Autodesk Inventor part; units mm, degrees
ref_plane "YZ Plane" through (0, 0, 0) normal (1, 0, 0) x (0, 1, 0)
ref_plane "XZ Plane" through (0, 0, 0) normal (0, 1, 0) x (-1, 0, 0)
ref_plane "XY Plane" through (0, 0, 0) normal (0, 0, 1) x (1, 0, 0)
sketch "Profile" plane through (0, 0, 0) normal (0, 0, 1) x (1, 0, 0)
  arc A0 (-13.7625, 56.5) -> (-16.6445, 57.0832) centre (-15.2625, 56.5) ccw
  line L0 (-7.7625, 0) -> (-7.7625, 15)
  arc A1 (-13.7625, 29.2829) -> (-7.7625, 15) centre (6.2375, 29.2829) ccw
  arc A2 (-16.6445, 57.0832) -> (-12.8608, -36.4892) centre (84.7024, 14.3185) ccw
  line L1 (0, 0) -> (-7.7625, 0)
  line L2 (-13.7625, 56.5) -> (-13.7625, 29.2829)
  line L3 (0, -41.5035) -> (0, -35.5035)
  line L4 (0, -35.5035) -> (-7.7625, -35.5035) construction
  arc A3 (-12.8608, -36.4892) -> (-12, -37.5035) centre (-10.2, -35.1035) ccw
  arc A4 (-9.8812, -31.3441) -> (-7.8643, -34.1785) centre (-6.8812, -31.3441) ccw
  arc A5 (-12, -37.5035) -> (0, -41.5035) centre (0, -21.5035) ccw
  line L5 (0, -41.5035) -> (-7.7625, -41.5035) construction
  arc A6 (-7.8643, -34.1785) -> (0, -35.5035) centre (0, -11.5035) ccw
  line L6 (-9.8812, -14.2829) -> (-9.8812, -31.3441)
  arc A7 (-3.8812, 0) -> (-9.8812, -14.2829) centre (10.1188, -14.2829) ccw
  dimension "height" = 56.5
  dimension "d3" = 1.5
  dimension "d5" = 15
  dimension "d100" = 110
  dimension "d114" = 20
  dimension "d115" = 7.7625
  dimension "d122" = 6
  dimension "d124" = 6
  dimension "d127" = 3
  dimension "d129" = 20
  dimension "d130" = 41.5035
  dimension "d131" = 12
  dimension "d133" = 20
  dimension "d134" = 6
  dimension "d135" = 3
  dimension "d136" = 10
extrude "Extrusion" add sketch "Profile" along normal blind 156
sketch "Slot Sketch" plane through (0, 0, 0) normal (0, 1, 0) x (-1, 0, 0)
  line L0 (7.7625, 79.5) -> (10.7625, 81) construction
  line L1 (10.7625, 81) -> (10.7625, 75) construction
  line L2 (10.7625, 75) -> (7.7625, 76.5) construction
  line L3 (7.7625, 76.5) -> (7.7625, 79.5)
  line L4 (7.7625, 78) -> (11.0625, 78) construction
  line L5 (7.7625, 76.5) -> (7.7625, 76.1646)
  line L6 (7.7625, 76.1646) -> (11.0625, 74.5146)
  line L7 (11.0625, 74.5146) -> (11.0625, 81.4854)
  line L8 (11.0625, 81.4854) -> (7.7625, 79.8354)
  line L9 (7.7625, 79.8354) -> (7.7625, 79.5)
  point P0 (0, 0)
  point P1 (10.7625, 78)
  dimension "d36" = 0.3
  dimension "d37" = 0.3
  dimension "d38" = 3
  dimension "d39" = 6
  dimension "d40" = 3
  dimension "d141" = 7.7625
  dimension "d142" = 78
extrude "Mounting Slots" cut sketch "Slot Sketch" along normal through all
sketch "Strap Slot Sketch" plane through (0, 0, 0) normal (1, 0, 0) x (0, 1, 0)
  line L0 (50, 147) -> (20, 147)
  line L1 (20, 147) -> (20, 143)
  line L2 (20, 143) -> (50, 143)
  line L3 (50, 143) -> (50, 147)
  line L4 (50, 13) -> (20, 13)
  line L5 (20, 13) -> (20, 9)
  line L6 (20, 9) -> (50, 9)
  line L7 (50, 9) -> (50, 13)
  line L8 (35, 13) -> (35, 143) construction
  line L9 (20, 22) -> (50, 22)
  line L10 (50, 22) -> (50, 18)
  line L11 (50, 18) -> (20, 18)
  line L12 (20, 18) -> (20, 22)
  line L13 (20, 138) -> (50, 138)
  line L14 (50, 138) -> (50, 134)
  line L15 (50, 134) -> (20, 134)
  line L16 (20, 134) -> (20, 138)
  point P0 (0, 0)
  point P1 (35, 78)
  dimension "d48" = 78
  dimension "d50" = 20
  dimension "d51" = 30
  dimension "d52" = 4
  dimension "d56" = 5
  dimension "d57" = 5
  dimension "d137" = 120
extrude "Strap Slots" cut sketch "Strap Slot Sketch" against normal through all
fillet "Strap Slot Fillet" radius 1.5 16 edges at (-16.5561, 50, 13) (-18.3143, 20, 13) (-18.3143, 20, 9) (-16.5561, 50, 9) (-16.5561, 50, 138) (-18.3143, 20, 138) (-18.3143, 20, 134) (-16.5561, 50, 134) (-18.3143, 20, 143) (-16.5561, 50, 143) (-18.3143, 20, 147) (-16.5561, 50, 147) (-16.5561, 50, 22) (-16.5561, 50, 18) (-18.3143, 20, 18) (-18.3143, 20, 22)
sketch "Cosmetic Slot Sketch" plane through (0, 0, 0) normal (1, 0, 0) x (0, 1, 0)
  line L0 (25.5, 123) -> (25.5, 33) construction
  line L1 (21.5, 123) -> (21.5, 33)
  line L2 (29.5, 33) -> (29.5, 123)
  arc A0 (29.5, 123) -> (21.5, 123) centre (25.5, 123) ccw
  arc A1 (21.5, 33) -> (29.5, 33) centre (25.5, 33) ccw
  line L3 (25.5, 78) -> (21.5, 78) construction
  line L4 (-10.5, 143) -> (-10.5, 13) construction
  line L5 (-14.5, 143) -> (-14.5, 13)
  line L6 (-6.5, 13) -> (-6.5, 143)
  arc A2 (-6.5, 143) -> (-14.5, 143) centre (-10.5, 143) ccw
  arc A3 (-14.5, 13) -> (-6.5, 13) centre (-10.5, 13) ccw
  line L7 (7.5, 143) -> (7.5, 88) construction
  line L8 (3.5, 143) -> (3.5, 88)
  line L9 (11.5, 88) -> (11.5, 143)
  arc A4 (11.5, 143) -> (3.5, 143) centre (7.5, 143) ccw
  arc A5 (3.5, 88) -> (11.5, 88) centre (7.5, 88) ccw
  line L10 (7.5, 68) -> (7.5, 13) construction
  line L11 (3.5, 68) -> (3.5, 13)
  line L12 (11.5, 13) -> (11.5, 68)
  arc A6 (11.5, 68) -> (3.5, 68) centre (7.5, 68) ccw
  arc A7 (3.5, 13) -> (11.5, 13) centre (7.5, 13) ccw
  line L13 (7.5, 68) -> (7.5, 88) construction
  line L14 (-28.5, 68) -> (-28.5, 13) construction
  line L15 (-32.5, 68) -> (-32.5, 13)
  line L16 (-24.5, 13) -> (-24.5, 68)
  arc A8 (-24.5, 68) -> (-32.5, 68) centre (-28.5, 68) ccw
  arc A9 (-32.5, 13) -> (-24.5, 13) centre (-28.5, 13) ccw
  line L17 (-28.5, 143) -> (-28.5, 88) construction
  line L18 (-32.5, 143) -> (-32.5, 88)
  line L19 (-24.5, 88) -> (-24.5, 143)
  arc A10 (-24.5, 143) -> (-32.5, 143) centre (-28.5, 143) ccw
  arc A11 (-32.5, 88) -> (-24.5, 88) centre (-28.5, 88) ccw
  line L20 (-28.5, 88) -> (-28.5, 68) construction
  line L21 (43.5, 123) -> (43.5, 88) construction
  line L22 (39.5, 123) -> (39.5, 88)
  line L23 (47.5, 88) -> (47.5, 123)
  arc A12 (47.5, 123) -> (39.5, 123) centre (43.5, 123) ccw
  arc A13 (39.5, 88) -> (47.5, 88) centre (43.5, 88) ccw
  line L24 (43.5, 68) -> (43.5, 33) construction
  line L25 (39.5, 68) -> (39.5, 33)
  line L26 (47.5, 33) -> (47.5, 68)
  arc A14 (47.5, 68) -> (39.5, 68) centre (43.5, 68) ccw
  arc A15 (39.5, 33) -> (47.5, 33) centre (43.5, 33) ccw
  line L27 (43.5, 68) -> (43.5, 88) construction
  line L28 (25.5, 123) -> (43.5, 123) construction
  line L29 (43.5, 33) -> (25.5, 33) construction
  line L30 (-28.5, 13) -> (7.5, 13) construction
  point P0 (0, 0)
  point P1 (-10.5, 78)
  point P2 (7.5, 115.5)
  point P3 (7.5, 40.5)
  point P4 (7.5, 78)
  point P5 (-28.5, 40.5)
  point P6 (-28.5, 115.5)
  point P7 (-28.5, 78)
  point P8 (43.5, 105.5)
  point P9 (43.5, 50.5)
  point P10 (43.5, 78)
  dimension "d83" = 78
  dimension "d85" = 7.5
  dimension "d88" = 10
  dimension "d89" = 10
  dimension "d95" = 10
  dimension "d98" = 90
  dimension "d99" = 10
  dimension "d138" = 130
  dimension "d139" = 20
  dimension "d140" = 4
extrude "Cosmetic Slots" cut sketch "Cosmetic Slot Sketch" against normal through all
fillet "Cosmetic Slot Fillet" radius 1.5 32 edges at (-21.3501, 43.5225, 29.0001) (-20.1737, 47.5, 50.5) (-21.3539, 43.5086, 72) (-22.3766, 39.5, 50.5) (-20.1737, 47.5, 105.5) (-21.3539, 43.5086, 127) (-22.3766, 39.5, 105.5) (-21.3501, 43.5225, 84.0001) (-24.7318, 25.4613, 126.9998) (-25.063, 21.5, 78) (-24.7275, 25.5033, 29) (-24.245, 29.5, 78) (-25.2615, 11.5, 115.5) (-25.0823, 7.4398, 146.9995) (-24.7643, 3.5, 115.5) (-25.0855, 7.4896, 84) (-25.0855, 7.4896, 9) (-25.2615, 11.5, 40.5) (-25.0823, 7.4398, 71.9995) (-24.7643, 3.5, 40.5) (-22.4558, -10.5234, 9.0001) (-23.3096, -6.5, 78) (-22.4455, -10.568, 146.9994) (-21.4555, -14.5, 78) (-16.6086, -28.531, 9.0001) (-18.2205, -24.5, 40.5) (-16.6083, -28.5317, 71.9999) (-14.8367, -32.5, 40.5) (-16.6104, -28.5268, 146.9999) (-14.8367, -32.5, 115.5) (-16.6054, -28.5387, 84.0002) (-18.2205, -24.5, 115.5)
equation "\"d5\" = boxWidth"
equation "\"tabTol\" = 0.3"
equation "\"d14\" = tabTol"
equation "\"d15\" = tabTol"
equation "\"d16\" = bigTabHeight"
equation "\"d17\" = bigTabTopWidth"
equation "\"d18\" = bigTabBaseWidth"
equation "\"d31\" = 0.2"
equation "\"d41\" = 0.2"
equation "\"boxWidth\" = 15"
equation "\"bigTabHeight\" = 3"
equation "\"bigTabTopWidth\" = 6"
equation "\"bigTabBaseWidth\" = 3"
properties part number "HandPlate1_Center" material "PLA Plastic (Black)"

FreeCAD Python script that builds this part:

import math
import FreeCAD as App
import Part
import Sketcher
Q = App.Units.Quantity


def edges_at(feature, points):
    """Names of the edges that pass closest to the given points."""
    edges = feature.Shape.Edges
    near = lambda p: min(range(len(edges)), key=lambda i: edges[i].distToShape(Part.Vertex(*p))[0])
    return sorted({f"Edge{near(p) + 1}" for p in points})

doc = App.newDocument("Part")
params = doc.addObject("Spreadsheet::Sheet", "Params")
for row, (alias, value) in enumerate([
    ("sketch1_radius", "110 mm"),
    ("sketch1_radius2", "3 mm"),
    ("sketch1_radius3", "20 mm"),
    ("sketch1_radius4", "1.5 mm"),
    ("sketch1_height", "6 mm"),
    ("pad1_length", "156 mm"),
    ("sketch3_width", "30 mm"),
    ("sketch3_height", "4 mm"),
    ("fillet_radius", "1.5 mm"),
    ("sketch4_radius", "4 mm"),
    ("sketch4_height", "90 mm"),
    ("sketch4_height2", "130 mm"),
    ("fillet2_radius", "1.5 mm"),
], start=1):
    params.set(f"A{row}", alias)
    params.set(f"B{row}", "=" + value)
    params.setAlias(f"B{row}", alias)

body = doc.addObject("PartDesign::Body", "Body")

sketch1 = doc.addObject("Sketcher::SketchObject", "Sketch")
body.addObject(sketch1)
sketch1.AttachmentSupport = (doc.XY_Plane, [""])
sketch1.MapMode = "FlatFace"
sketch1.addGeometry(Part.LineSegment(App.Vector(-13.7625, 29.2829, 0), App.Vector(-13.7625, 56.5, 0)), False)
sketch1.addGeometry(Part.ArcOfCircle(Part.Circle(App.Vector(-15.2625, 56.5, 0), App.Vector(0, 0, 1), 1.5), math.radians(0), math.radians(157.120396)), False)
sketch1.addGeometry(Part.ArcOfCircle(Part.Circle(App.Vector(84.7024, 14.3185, 0), App.Vector(0, 0, 1), 110.000062), math.radians(157.122027), math.radians(207.509015)), False)
sketch1.addGeometry(Part.ArcOfCircle(Part.Circle(App.Vector(-10.2, -35.1035, 0), App.Vector(0, 0, 1), 3.000004), math.radians(-152.490256), math.radians(-126.869898)), False)
sketch1.addGeometry(Part.ArcOfCircle(Part.Circle(App.Vector(0, -21.5035, 0), App.Vector(0, 0, 1), 20), math.radians(-126.869898), math.radians(-90)), False)
sketch1.addGeometry(Part.LineSegment(App.Vector(0, -41.5035, 0), App.Vector(0, -35.5035, 0)), False)
sketch1.addGeometry(Part.ArcOfCircle(Part.Circle(App.Vector(-0.000529, -11.505569, 0), App.Vector(0, 0, 1), 23.997931), math.radians(-109.128347), math.radians(-89.998737)), False)
sketch1.addGeometry(Part.ArcOfCircle(Part.Circle(App.Vector(-6.8812, -31.3441, 0), App.Vector(0, 0, 1), 3), math.radians(180), math.radians(250.871107)), False)
sketch1.addGeometry(Part.LineSegment(App.Vector(-9.8812, -31.3441, 0), App.Vector(-9.8812, -14.2829, 0)), False)
sketch1.addGeometry(Part.ArcOfCircle(Part.Circle(App.Vector(10.1188, -14.2829, 0), App.Vector(0, 0, 1), 20.000031), math.radians(134.426917), math.radians(180)), False)
sketch1.addGeometry(Part.LineSegment(App.Vector(-3.8812, 0, 0), App.Vector(-7.7625, 0, 0)), False)
sketch1.addGeometry(Part.LineSegment(App.Vector(-7.7625, 0, 0), App.Vector(-7.7625, 15, 0)), False)
sketch1.addGeometry(Part.ArcOfCircle(Part.Circle(App.Vector(6.2375, 29.2829, 0), App.Vector(0, 0, 1), 20), math.radians(180), math.radians(225.573083)), False)
sketch1.addConstraint(Sketcher.Constraint("Tangent", 0, 2, 1, 1))
sketch1.addConstraint(Sketcher.Constraint("Tangent", 1, 2, 2, 1))
sketch1.addConstraint(Sketcher.Constraint("Tangent", 2, 2, 3, 1))
sketch1.addConstraint(Sketcher.Constraint("Tangent", 3, 2, 4, 1))
sketch1.addConstraint(Sketcher.Constraint("Coincident", 4, 2, 5, 1))
sketch1.addConstraint(Sketcher.Constraint("Coincident", 5, 2, 6, 2))
sketch1.addConstraint(Sketcher.Constraint("Tangent", 6, 1, 7, 2))
sketch1.addConstraint(Sketcher.Constraint("Tangent", 7, 1, 8, 1))
sketch1.addConstraint(Sketcher.Constraint("Tangent", 8, 2, 9, 2))
sketch1.addConstraint(Sketcher.Constraint("Coincident", 9, 1, 10, 1))
sketch1.addConstraint(Sketcher.Constraint("Coincident", 10, 2, 11, 1))
sketch1.addConstraint(Sketcher.Constraint("Coincident", 11, 2, 12, 2))
sketch1.addConstraint(Sketcher.Constraint("Tangent", 12, 1, 0, 1))
sketch1.addConstraint(Sketcher.Constraint("Vertical", 0))
sketch1.addConstraint(Sketcher.Constraint("Vertical", 5))
sketch1.addConstraint(Sketcher.Constraint("Vertical", 8))
sketch1.addConstraint(Sketcher.Constraint("Horizontal", 10))
sketch1.addConstraint(Sketcher.Constraint("Vertical", 11))
sketch1.addConstraint(Sketcher.Constraint("Equal", 3, 7))
sketch1.addConstraint(Sketcher.Constraint("Equal", 4, 9))
sketch1.addConstraint(Sketcher.Constraint("Equal", 9, 12))
sketch1.addConstraint(Sketcher.Constraint("PointOnObject", 4, 3, -2))
sketch1.addConstraint(Sketcher.Constraint("PointOnObject", 4, 2, -2))
sketch1.addConstraint(Sketcher.Constraint("PointOnObject", 9, 1, -1))
sketch1.addConstraint(Sketcher.Constraint("Radius", 2, Q("110 mm")))
sketch1.addConstraint(Sketcher.Constraint("Radius", 3, Q("3 mm")))
sketch1.addConstraint(Sketcher.Constraint("Radius", 4, Q("20 mm")))
sketch1.addConstraint(Sketcher.Constraint("Radius", 1, Q("1.5 mm")))
sketch1.addConstraint(Sketcher.Constraint("DistanceY", 5, 1, 5, 2, Q("6 mm")))
sketch1.addConstraint(Sketcher.Constraint("DistanceY", 11, 1, 11, 2, Q("15 mm")))
sketch1.addConstraint(Sketcher.Constraint("DistanceX", 3, 2, -1, 1, Q("12 mm")))
sketch1.addConstraint(Sketcher.Constraint("DistanceX", 8, 2, 9, 1, Q("6 mm")))
sketch1.addConstraint(Sketcher.Constraint("DistanceX", 12, 1, 11, 2, Q("6 mm")))
sketch1.addConstraint(Sketcher.Constraint("DistanceY", -1, 1, 1, 3, Q("56.5 mm")))
sketch1.addConstraint(Sketcher.Constraint("Radius", 6, Q("23.998 mm")))
sketch1.addConstraint(Sketcher.Constraint("DistanceX", 10, 2, 6, 3, Q("7.762 mm")))
sketch1.addConstraint(Sketcher.Constraint("DistanceY", 4, 2, -1, 1, Q("41.5035 mm")))
sketch1.addConstraint(Sketcher.Constraint("DistanceX", 10, 2, -1, 1, Q("7.7625 mm")))
sketch1.addConstraint(Sketcher.Constraint("DistanceX", 10, 2, 10, 1, Q("3.8813 mm")))
sketch1.setExpression("Constraints[24]", "Params.sketch1_radius")
sketch1.setExpression("Constraints[25]", "Params.sketch1_radius2")
sketch1.setExpression("Constraints[26]", "Params.sketch1_radius3")
sketch1.setExpression("Constraints[27]", "Params.sketch1_radius4")
sketch1.setExpression("Constraints[28]", "Params.sketch1_height")
pad1 = doc.addObject("PartDesign::Pad", "Pad")
body.addObject(pad1)
pad1.Profile = sketch1
pad1.setExpression("Length", "Params.pad1_length")

sketch2 = doc.addObject("Sketcher::SketchObject", "Sketch001")
body.addObject(sketch2)
sketch2.AttachmentSupport = (doc.XZ_Plane, [""])
sketch2.MapMode = "FlatFace"
sketch2.addGeometry(Part.LineSegment(App.Vector(-7.7625, 79.8354, 0), App.Vector(-7.7625, 76.1646, 0)), False)
sketch2.addGeometry(Part.LineSegment(App.Vector(-7.7625, 76.1646, 0), App.Vector(-11.0625, 74.5146, 0)), False)
sketch2.addGeometry(Part.LineSegment(App.Vector(-11.0625, 74.5146, 0), App.Vector(-11.0625, 81.4854, 0)), False)
sketch2.addGeometry(Part.LineSegment(App.Vector(-11.0625, 81.4854, 0), App.Vector(-7.7625, 79.8354, 0)), False)
sketch2.addConstraint(Sketcher.Constraint("Coincident", 0, 2, 1, 1))
sketch2.addConstraint(Sketcher.Constraint("Coincident", 1, 2, 2, 1))
sketch2.addConstraint(Sketcher.Constraint("Coincident", 2, 2, 3, 1))
sketch2.addConstraint(Sketcher.Constraint("Coincident", 3, 2, 0, 1))
sketch2.addConstraint(Sketcher.Constraint("Vertical", 0))
sketch2.addConstraint(Sketcher.Constraint("Vertical", 2))
sketch2.addConstraint(Sketcher.Constraint("Equal", 1, 3))
sketch2.addConstraint(Sketcher.Constraint("DistanceX", 0, 2, -1, 1, Q("7.7625 mm")))
sketch2.addConstraint(Sketcher.Constraint("DistanceX", 1, 2, 0, 2, Q("3.3 mm")))
sketch2.addConstraint(Sketcher.Constraint("DistanceY", 1, 2, 0, 2, Q("1.65 mm")))
sketch2.addConstraint(Sketcher.Constraint("DistanceY", 0, 2, 0, 1, Q("3.6708 mm")))
sketch2.addConstraint(Sketcher.Constraint("DistanceY", -1, 1, 0, 2, Q("76.1646 mm")))
pocket1 = doc.addObject("PartDesign::Pocket", "Pocket")
body.addObject(pocket1)
pocket1.Profile = sketch2
pocket1.Type = "ThroughAll"

sketch3 = doc.addObject("Sketcher::SketchObject", "Sketch002")
body.addObject(sketch3)
sketch3.AttachmentSupport = (doc.YZ_Plane, [""])
sketch3.MapMode = "FlatFace"
sketch3.addGeometry(Part.LineSegment(App.Vector(50, 143, 0), App.Vector(50, 147, 0)), False)
sketch3.addGeometry(Part.LineSegment(App.Vector(50, 147, 0), App.Vector(20, 147, 0)), False)
sketch3.addGeometry(Part.LineSegment(App.Vector(20, 147, 0), App.Vector(20, 143, 0)), False)
sketch3.addGeometry(Part.LineSegment(App.Vector(20, 143, 0), App.Vector(50, 143, 0)), False)
sketch3.addGeometry(Part.LineSegment(App.Vector(50, 9, 0), App.Vector(50, 13, 0)), False)
sketch3.addGeometry(Part.LineSegment(App.Vector(50, 13, 0), App.Vector(20, 13, 0)), False)
sketch3.addGeometry(Part.LineSegment(App.Vector(20, 13, 0), App.Vector(20, 9, 0)), False)
sketch3.addGeometry(Part.LineSegment(App.Vector(20, 9, 0), App.Vector(50, 9, 0)), False)
sketch3.addGeometry(Part.LineSegment(App.Vector(50, 22, 0), App.Vector(20, 22, 0)), False)
sketch3.addGeometry(Part.LineSegment(App.Vector(20, 22, 0), App.Vector(20, 18, 0)), False)
sketch3.addGeometry(Part.LineSegment(App.Vector(20, 18, 0), App.Vector(50, 18, 0)), False)
sketch3.addGeometry(Part.LineSegment(App.Vector(50, 18, 0), App.Vector(50, 22, 0)), False)
sketch3.addGeometry(Part.LineSegment(App.Vector(50, 138, 0), App.Vector(20, 138, 0)), False)
sketch3.addGeometry(Part.LineSegment(App.Vector(20, 138, 0), App.Vector(20, 134, 0)), False)
sketch3.addGeometry(Part.LineSegment(App.Vector(20, 134, 0), App.Vector(50, 134, 0)), False)
sketch3.addGeometry(Part.LineSegment(App.Vector(50, 134, 0), App.Vector(50, 138, 0)), False)
sketch3.addConstraint(Sketcher.Constraint("Coincident", 0, 2, 1, 1))
sketch3.addConstraint(Sketcher.Constraint("Coincident", 1, 2, 2, 1))
sketch3.addConstraint(Sketcher.Constraint("Coincident", 2, 2, 3, 1))
sketch3.addConstraint(Sketcher.Constraint("Coincident", 3, 2, 0, 1))
sketch3.addConstraint(Sketcher.Constraint("Coincident", 4, 2, 5, 1))
sketch3.addConstraint(Sketcher.Constraint("Coincident", 5, 2, 6, 1))
sketch3.addConstraint(Sketcher.Constraint("Coincident", 6, 2, 7, 1))
sketch3.addConstraint(Sketcher.Constraint("Coincident", 7, 2, 4, 1))
sketch3.addConstraint(Sketcher.Constraint("Coincident", 8, 2, 9, 1))
sketch3.addConstraint(Sketcher.Constraint("Coincident", 9, 2, 10, 1))
sketch3.addConstraint(Sketcher.Constraint("Coincident", 10, 2, 11, 1))
sketch3.addConstraint(Sketcher.Constraint("Coincident", 11, 2, 8, 1))
sketch3.addConstraint(Sketcher.Constraint("Coincident", 12, 2, 13, 1))
sketch3.addConstraint(Sketcher.Constraint("Coincident", 13, 2, 14, 1))
sketch3.addConstraint(Sketcher.Constraint("Coincident", 14, 2, 15, 1))
sketch3.addConstraint(Sketcher.Constraint("Coincident", 15, 2, 12, 1))
sketch3.addConstraint(Sketcher.Constraint("Vertical", 0))
sketch3.addConstraint(Sketcher.Constraint("Horizontal", 1))
sketch3.addConstraint(Sketcher.Constraint("Vertical", 2))
sketch3.addConstraint(Sketcher.Constraint("Horizontal", 3))
sketch3.addConstraint(Sketcher.Constraint("Vertical", 4))
sketch3.addConstraint(Sketcher.Constraint("Horizontal", 5))
sketch3.addConstraint(Sketcher.Constraint("Vertical", 6))
sketch3.addConstraint(Sketcher.Constraint("Horizontal", 7))
sketch3.addConstraint(Sketcher.Constraint("Horizontal", 8))
sketch3.addConstraint(Sketcher.Constraint("Vertical", 9))
sketch3.addConstraint(Sketcher.Constraint("Horizontal", 10))
sketch3.addConstraint(Sketcher.Constraint("Vertical", 11))
sketch3.addConstraint(Sketcher.Constraint("Horizontal", 12))
sketch3.addConstraint(Sketcher.Constraint("Vertical", 13))
sketch3.addConstraint(Sketcher.Constraint("Horizontal", 14))
sketch3.addConstraint(Sketcher.Constraint("Vertical", 15))
sketch3.addConstraint(Sketcher.Constraint("Vertical", 3, 2, 4, 2))
sketch3.addConstraint(Sketcher.Constraint("Vertical", 2, 2, 5, 2))
sketch3.addConstraint(Sketcher.Constraint("Vertical", 6, 2, 8, 2))
sketch3.addConstraint(Sketcher.Constraint("Vertical", 7, 2, 10, 2))
sketch3.addConstraint(Sketcher.Constraint("Vertical", 9, 2, 12, 2))
sketch3.addConstraint(Sketcher.Constraint("Vertical", 11, 2, 14, 2))
sketch3.addConstraint(Sketcher.Constraint("Equal", 2, 4))
sketch3.addConstraint(Sketcher.Constraint("Equal", 6, 9))
sketch3.addConstraint(Sketcher.Constraint("Equal", 11, 13))
sketch3.addConstraint(Sketcher.Constraint("DistanceX", 1, 2, 1, 1, Q("30 mm")))
sketch3.addConstraint(Sketcher.Constraint("DistanceY", 0, 1, 0, 2, Q("4 mm")))
sketch3.addConstraint(Sketcher.Constraint("DistanceX", -1, 1, 1, 2, Q("20 mm")))
sketch3.addConstraint(Sketcher.Constraint("DistanceY", 5, 2, 9, 2, Q("5 mm")))
sketch3.addConstraint(Sketcher.Constraint("DistanceY", 12, 2, 2, 2, Q("5 mm")))
sketch3.addConstraint(Sketcher.Constraint("DistanceY", -1, 1, 0, 2, Q("147 mm")))
sketch3.addConstraint(Sketcher.Constraint("DistanceY", -1, 1, 4, 2, Q("13 mm")))
sketch3.setExpression("Constraints[41]", "Params.sketch3_width")
sketch3.setExpression("Constraints[42]", "Params.sketch3_height")
pocket2 = doc.addObject("PartDesign::Pocket", "Pocket001")
body.addObject(pocket2)
pocket2.Profile = sketch3
pocket2.Type = "ThroughAll"
doc.recompute()

fillet = doc.addObject("PartDesign::Fillet", "Fillet")
body.addObject(fillet)
fillet.Base = (pocket2, edges_at(pocket2, [
    (-16.556, 50, 13),
    (-18.314, 20, 13),
    (-18.314, 20, 9),
    (-16.556, 50, 9),
    (-16.556, 50, 138),
    (-18.314, 20, 138),
    (-18.314, 20, 134),
    (-16.556, 50, 134),
    (-18.314, 20, 143),
    (-16.556, 50, 143),
    (-18.314, 20, 147),
    (-16.556, 50, 147),
    (-16.556, 50, 22),
    (-16.556, 50, 18),
    (-18.314, 20, 18),
    (-18.314, 20, 22),
]))
fillet.setExpression("Radius", "Params.fillet_radius")

sketch4 = doc.addObject("Sketcher::SketchObject", "Sketch003")
body.addObject(sketch4)
sketch4.AttachmentSupport = (doc.YZ_Plane, [""])
sketch4.MapMode = "FlatFace"
sketch4.addGeometry(Part.ArcOfCircle(Part.Circle(App.Vector(25.5, 123, 0), App.Vector(0, 0, 1), 4), math.radians(0), math.radians(180)), False)
sketch4.addGeometry(Part.LineSegment(App.Vector(21.5, 123, 0), App.Vector(21.5, 33, 0)), False)
sketch4.addGeometry(Part.ArcOfCircle(Part.Circle(App.Vector(25.5, 33, 0), App.Vector(0, 0, 1), 4), math.radians(180), math.radians(360)), False)
sketch4.addGeometry(Part.LineSegment(App.Vector(29.5, 33, 0), App.Vector(29.5, 123, 0)), False)
sketch4.addGeometry(Part.ArcOfCircle(Part.Circle(App.Vector(-10.5, 143, 0), App.Vector(0, 0, 1), 4), math.radians(0), math.radians(180)), False)
sketch4.addGeometry(Part.LineSegment(App.Vector(-14.5, 143, 0), App.Vector(-14.5, 13, 0)), False)
sketch4.addGeometry(Part.ArcOfCircle(Part.Circle(App.Vector(-10.5, 13, 0), App.Vector(0, 0, 1), 4), math.radians(180), math.radians(360)), False)
sketch4.addGeometry(Part.LineSegment(App.Vector(-6.5, 13, 0), App.Vector(-6.5, 143, 0)), False)
sketch4.addGeometry(Part.ArcOfCircle(Part.Circle(App.Vector(7.5, 143, 0), App.Vector(0, 0, 1), 4), math.radians(0), math.radians(180)), False)
sketch4.addGeometry(Part.LineSegment(App.Vector(3.5, 143, 0), App.Vector(3.5, 88, 0)), False)
sketch4.addGeometry(Part.ArcOfCircle(Part.Circle(App.Vector(7.5, 88, 0), App.Vector(0, 0, 1), 4), math.radians(180), math.radians(360)), False)
sketch4.addGeometry(Part.LineSegment(App.Vector(11.5, 88, 0), App.Vector(11.5, 143, 0)), False)
sketch4.addGeometry(Part.ArcOfCircle(Part.Circle(App.Vector(7.5, 68, 0), App.Vector(0, 0, 1), 4), math.radians(0), math.radians(180)), False)
sketch4.addGeometry(Part.LineSegment(App.Vector(3.5, 68, 0), App.Vector(3.5, 13, 0)), False)
sketch4.addGeometry(Part.ArcOfCircle(Part.Circle(App.Vector(7.5, 13, 0), App.Vector(0, 0, 1), 4), math.radians(180), math.radians(360)), False)
sketch4.addGeometry(Part.LineSegment(App.Vector(11.5, 13, 0), App.Vector(11.5, 68, 0)), False)
sketch4.addGeometry(Part.ArcOfCircle(Part.Circle(App.Vector(-28.5, 68, 0), App.Vector(0, 0, 1), 4), math.radians(0), math.radians(180)), False)
sketch4.addGeometry(Part.LineSegment(App.Vector(-32.5, 68, 0), App.Vector(-32.5, 13, 0)), False)
sketch4.addGeometry(Part.ArcOfCircle(Part.Circle(App.Vector(-28.5, 13, 0), App.Vector(0, 0, 1), 4), math.radians(180), math.radians(360)), False)
sketch4.addGeometry(Part.LineSegment(App.Vector(-24.5, 13, 0), App.Vector(-24.5, 68, 0)), False)
sketch4.addGeometry(Part.ArcOfCircle(Part.Circle(App.Vector(-28.5, 143, 0), App.Vector(0, 0, 1), 4), math.radians(0), math.radians(180)), False)
sketch4.addGeometry(Part.LineSegment(App.Vector(-32.5, 143, 0), App.Vector(-32.5, 88, 0)), False)
sketch4.addGeometry(Part.ArcOfCircle(Part.Circle(App.Vector(-28.5, 88, 0), App.Vector(0, 0, 1), 4), math.radians(180), math.radians(360)), False)
sketch4.addGeometry(Part.LineSegment(App.Vector(-24.5, 88, 0), App.Vector(-24.5, 143, 0)), False)
sketch4.addGeometry(Part.ArcOfCircle(Part.Circle(App.Vector(43.5, 123, 0), App.Vector(0, 0, 1), 4), math.radians(0), math.radians(180)), False)
sketch4.addGeometry(Part.LineSegment(App.Vector(39.5, 123, 0), App.Vector(39.5, 88, 0)), False)
sketch4.addGeometry(Part.ArcOfCircle(Part.Circle(App.Vector(43.5, 88, 0), App.Vector(0, 0, 1), 4), math.radians(180), math.radians(360)), False)
sketch4.addGeometry(Part.LineSegment(App.Vector(47.5, 88, 0), App.Vector(47.5, 123, 0)), False)
sketch4.addGeometry(Part.ArcOfCircle(Part.Circle(App.Vector(43.5, 68, 0), App.Vector(0, 0, 1), 4), math.radians(0), math.radians(180)), False)
sketch4.addGeometry(Part.LineSegment(App.Vector(39.5, 68, 0), App.Vector(39.5, 33, 0)), False)
sketch4.addGeometry(Part.ArcOfCircle(Part.Circle(App.Vector(43.5, 33, 0), App.Vector(0, 0, 1), 4), math.radians(180), math.radians(360)), False)
sketch4.addGeometry(Part.LineSegment(App.Vector(47.5, 33, 0), App.Vector(47.5, 68, 0)), False)
sketch4.addConstraint(Sketcher.Constraint("Tangent", 0, 2, 1, 1))
sketch4.addConstraint(Sketcher.Constraint("Tangent", 1, 2, 2, 1))
sketch4.addConstraint(Sketcher.Constraint("Tangent", 2, 2, 3, 1))
sketch4.addConstraint(Sketcher.Constraint("Tangent", 3, 2, 0, 1))
sketch4.addConstraint(Sketcher.Constraint("Tangent", 4, 2, 5, 1))
sketch4.addConstraint(Sketcher.Constraint("Tangent", 5, 2, 6, 1))
sketch4.addConstraint(Sketcher.Constraint("Tangent", 6, 2, 7, 1))
sketch4.addConstraint(Sketcher.Constraint("Tangent", 7, 2, 4, 1))
sketch4.addConstraint(Sketcher.Constraint("Tangent", 8, 2, 9, 1))
sketch4.addConstraint(Sketcher.Constraint("Tangent", 9, 2, 10, 1))
sketch4.addConstraint(Sketcher.Constraint("Tangent", 10, 2, 11, 1))
sketch4.addConstraint(Sketcher.Constraint("Tangent", 11, 2, 8, 1))
sketch4.addConstraint(Sketcher.Constraint("Tangent", 12, 2, 13, 1))
sketch4.addConstraint(Sketcher.Constraint("Tangent", 13, 2, 14, 1))
sketch4.addConstraint(Sketcher.Constraint("Tangent", 14, 2, 15, 1))
sketch4.addConstraint(Sketcher.Constraint("Tangent", 15, 2, 12, 1))
sketch4.addConstraint(Sketcher.Constraint("Tangent", 16, 2, 17, 1))
sketch4.addConstraint(Sketcher.Constraint("Tangent", 17, 2, 18, 1))
sketch4.addConstraint(Sketcher.Constraint("Tangent", 18, 2, 19, 1))
sketch4.addConstraint(Sketcher.Constraint("Tangent", 19, 2, 16, 1))
sketch4.addConstraint(Sketcher.Constraint("Tangent", 20, 2, 21, 1))
sketch4.addConstraint(Sketcher.Constraint("Tangent", 21, 2, 22, 1))
sketch4.addConstraint(Sketcher.Constraint("Tangent", 22, 2, 23, 1))
sketch4.addConstraint(Sketcher.Constraint("Tangent", 23, 2, 20, 1))
sketch4.addConstraint(Sketcher.Constraint("Tangent", 24, 2, 25, 1))
sketch4.addConstraint(Sketcher.Constraint("Tangent", 25, 2, 26, 1))
sketch4.addConstraint(Sketcher.Constraint("Tangent", 26, 2, 27, 1))
sketch4.addConstraint(Sketcher.Constraint("Tangent", 27, 2, 24, 1))
sketch4.addConstraint(Sketcher.Constraint("Tangent", 28, 2, 29, 1))
sketch4.addConstraint(Sketcher.Constraint("Tangent", 29, 2, 30, 1))
sketch4.addConstraint(Sketcher.Constraint("Tangent", 30, 2, 31, 1))
sketch4.addConstraint(Sketcher.Constraint("Tangent", 31, 2, 28, 1))
sketch4.addConstraint(Sketcher.Constraint("Vertical", 1))
sketch4.addConstraint(Sketcher.Constraint("Vertical", 3))
sketch4.addConstraint(Sketcher.Constraint("Vertical", 5))
sketch4.addConstraint(Sketcher.Constraint("Vertical", 7))
sketch4.addConstraint(Sketcher.Constraint("Vertical", 9))
sketch4.addConstraint(Sketcher.Constraint("Vertical", 11))
sketch4.addConstraint(Sketcher.Constraint("Vertical", 13))
sketch4.addConstraint(Sketcher.Constraint("Vertical", 15))
sketch4.addConstraint(Sketcher.Constraint("Vertical", 17))
sketch4.addConstraint(Sketcher.Constraint("Vertical", 19))
sketch4.addConstraint(Sketcher.Constraint("Vertical", 21))
sketch4.addConstraint(Sketcher.Constraint("Vertical", 23))
sketch4.addConstraint(Sketcher.Constraint("Vertical", 25))
sketch4.addConstraint(Sketcher.Constraint("Vertical", 27))
sketch4.addConstraint(Sketcher.Constraint("Vertical", 29))
sketch4.addConstraint(Sketcher.Constraint("Vertical", 31))
sketch4.addConstraint(Sketcher.Constraint("Equal", 2, 4))
sketch4.addConstraint(Sketcher.Constraint("Equal", 6, 8))
sketch4.addConstraint(Sketcher.Constraint("Equal", 10, 12))
sketch4.addConstraint(Sketcher.Constraint("Equal", 14, 16))
sketch4.addConstraint(Sketcher.Constraint("Equal", 18, 20))
sketch4.addConstraint(Sketcher.Constraint("Equal", 22, 24))
sketch4.addConstraint(Sketcher.Constraint("Equal", 26, 28))
sketch4.addConstraint(Sketcher.Constraint("Horizontal", 4, 3, 8, 3))
sketch4.addConstraint(Sketcher.Constraint("Horizontal", 6, 3, 14, 3))
sketch4.addConstraint(Sketcher.Constraint("Horizontal", 12, 3, 16, 3))
sketch4.addConstraint(Sketcher.Constraint("Horizontal", 14, 3, 18, 3))
sketch4.addConstraint(Sketcher.Constraint("Horizontal", 8, 3, 20, 3))
sketch4.addConstraint(Sketcher.Constraint("Horizontal", 10, 3, 22, 3))
sketch4.addConstraint(Sketcher.Constraint("Horizontal", 0, 3, 24, 3))
sketch4.addConstraint(Sketcher.Constraint("Horizontal", 22, 3, 26, 3))
sketch4.addConstraint(Sketcher.Constraint("Horizontal", 16, 3, 28, 3))
sketch4.addConstraint(Sketcher.Constraint("Horizontal", 2, 3, 30, 3))
sketch4.addConstraint(Sketcher.Constraint("Vertical", 10, 3, 12, 3))
sketch4.addConstraint(Sketcher.Constraint("Vertical", 18, 3, 20, 3))
sketch4.addConstraint(Sketcher.Constraint("Vertical", 26, 3, 28, 3))
sketch4.addConstraint(Sketcher.Constraint("Equal", 11, 13))
sketch4.addConstraint(Sketcher.Constraint("Equal", 27, 29))
sketch4.addConstraint(Sketcher.Constraint("Radius", 0, Q("4 mm")))
sketch4.addConstraint(Sketcher.Constraint("DistanceY", 1, 2, 1, 1, Q("90 mm")))
sketch4.addConstraint(Sketcher.Constraint("DistanceY", 5, 2, 5, 1, Q("130 mm")))
sketch4.addConstraint(Sketcher.Constraint("DistanceY", 12, 3, 10, 3, Q("20 mm")))
sketch4.addConstraint(Sketcher.Constraint("DistanceX", 7, 2, 8, 2, Q("10 mm")))
sketch4.addConstraint(Sketcher.Constraint("DistanceX", 10, 2, 0, 2, Q("10 mm")))
sketch4.addConstraint(Sketcher.Constraint("DistanceX", 18, 2, 5, 2, Q("10 mm")))
sketch4.addConstraint(Sketcher.Constraint("DistanceX", 3, 2, 24, 2, Q("10 mm")))
sketch4.addConstraint(Sketcher.Constraint("DistanceX", -1, 1, 8, 3, Q("7.5 mm")))
sketch4.addConstraint(Sketcher.Constraint("DistanceY", -1, 1, 0, 3, Q("123 mm")))
sketch4.setExpression("Constraints[70]", "Params.sketch4_radius")
sketch4.setExpression("Constraints[71]", "Params.sketch4_height")
sketch4.setExpression("Constraints[72]", "Params.sketch4_height2")
pocket3 = doc.addObject("PartDesign::Pocket", "Pocket002")
body.addObject(pocket3)
pocket3.Profile = sketch4
pocket3.Type = "ThroughAll"
doc.recompute()

fillet2 = doc.addObject("PartDesign::Fillet", "Fillet001")
body.addObject(fillet2)
fillet2.Base = (pocket3, edges_at(pocket3, [
    (-21.35, 43.523, 29),
    (-20.174, 47.5, 50.5),
    (-21.354, 43.509, 72),
    (-22.377, 39.5, 50.5),
    (-20.174, 47.5, 105.5),
    (-21.354, 43.509, 127),
    (-22.377, 39.5, 105.5),
    (-21.35, 43.523, 84),
    (-24.732, 25.461, 127),
    (-25.063, 21.5, 78),
    (-24.727, 25.503, 29),
    (-24.245, 29.5, 78),
    (-25.262, 11.5, 115.5),
    (-25.082, 7.44, 147),
    (-24.764, 3.5, 115.5),
    (-25.085, 7.49, 84),
    (-25.085, 7.49, 9),
    (-25.262, 11.5, 40.5),
    (-25.082, 7.44, 71.999),
    (-24.764, 3.5, 40.5),
    (-22.456, -10.523, 9),
    (-23.31, -6.5, 78),
    (-22.445, -10.568, 146.999),
    (-21.456, -14.5, 78),
    (-16.609, -28.531, 9),
    (-18.221, -24.5, 40.5),
    (-16.608, -28.532, 72),
    (-14.837, -32.5, 40.5),
    (-16.61, -28.527, 147),
    (-14.837, -32.5, 115.5),
    (-16.605, -28.539, 84),
    (-18.221, -24.5, 115.5),
]))
fillet2.setExpression("Radius", "Params.fillet2_radius")

doc.recompute()
